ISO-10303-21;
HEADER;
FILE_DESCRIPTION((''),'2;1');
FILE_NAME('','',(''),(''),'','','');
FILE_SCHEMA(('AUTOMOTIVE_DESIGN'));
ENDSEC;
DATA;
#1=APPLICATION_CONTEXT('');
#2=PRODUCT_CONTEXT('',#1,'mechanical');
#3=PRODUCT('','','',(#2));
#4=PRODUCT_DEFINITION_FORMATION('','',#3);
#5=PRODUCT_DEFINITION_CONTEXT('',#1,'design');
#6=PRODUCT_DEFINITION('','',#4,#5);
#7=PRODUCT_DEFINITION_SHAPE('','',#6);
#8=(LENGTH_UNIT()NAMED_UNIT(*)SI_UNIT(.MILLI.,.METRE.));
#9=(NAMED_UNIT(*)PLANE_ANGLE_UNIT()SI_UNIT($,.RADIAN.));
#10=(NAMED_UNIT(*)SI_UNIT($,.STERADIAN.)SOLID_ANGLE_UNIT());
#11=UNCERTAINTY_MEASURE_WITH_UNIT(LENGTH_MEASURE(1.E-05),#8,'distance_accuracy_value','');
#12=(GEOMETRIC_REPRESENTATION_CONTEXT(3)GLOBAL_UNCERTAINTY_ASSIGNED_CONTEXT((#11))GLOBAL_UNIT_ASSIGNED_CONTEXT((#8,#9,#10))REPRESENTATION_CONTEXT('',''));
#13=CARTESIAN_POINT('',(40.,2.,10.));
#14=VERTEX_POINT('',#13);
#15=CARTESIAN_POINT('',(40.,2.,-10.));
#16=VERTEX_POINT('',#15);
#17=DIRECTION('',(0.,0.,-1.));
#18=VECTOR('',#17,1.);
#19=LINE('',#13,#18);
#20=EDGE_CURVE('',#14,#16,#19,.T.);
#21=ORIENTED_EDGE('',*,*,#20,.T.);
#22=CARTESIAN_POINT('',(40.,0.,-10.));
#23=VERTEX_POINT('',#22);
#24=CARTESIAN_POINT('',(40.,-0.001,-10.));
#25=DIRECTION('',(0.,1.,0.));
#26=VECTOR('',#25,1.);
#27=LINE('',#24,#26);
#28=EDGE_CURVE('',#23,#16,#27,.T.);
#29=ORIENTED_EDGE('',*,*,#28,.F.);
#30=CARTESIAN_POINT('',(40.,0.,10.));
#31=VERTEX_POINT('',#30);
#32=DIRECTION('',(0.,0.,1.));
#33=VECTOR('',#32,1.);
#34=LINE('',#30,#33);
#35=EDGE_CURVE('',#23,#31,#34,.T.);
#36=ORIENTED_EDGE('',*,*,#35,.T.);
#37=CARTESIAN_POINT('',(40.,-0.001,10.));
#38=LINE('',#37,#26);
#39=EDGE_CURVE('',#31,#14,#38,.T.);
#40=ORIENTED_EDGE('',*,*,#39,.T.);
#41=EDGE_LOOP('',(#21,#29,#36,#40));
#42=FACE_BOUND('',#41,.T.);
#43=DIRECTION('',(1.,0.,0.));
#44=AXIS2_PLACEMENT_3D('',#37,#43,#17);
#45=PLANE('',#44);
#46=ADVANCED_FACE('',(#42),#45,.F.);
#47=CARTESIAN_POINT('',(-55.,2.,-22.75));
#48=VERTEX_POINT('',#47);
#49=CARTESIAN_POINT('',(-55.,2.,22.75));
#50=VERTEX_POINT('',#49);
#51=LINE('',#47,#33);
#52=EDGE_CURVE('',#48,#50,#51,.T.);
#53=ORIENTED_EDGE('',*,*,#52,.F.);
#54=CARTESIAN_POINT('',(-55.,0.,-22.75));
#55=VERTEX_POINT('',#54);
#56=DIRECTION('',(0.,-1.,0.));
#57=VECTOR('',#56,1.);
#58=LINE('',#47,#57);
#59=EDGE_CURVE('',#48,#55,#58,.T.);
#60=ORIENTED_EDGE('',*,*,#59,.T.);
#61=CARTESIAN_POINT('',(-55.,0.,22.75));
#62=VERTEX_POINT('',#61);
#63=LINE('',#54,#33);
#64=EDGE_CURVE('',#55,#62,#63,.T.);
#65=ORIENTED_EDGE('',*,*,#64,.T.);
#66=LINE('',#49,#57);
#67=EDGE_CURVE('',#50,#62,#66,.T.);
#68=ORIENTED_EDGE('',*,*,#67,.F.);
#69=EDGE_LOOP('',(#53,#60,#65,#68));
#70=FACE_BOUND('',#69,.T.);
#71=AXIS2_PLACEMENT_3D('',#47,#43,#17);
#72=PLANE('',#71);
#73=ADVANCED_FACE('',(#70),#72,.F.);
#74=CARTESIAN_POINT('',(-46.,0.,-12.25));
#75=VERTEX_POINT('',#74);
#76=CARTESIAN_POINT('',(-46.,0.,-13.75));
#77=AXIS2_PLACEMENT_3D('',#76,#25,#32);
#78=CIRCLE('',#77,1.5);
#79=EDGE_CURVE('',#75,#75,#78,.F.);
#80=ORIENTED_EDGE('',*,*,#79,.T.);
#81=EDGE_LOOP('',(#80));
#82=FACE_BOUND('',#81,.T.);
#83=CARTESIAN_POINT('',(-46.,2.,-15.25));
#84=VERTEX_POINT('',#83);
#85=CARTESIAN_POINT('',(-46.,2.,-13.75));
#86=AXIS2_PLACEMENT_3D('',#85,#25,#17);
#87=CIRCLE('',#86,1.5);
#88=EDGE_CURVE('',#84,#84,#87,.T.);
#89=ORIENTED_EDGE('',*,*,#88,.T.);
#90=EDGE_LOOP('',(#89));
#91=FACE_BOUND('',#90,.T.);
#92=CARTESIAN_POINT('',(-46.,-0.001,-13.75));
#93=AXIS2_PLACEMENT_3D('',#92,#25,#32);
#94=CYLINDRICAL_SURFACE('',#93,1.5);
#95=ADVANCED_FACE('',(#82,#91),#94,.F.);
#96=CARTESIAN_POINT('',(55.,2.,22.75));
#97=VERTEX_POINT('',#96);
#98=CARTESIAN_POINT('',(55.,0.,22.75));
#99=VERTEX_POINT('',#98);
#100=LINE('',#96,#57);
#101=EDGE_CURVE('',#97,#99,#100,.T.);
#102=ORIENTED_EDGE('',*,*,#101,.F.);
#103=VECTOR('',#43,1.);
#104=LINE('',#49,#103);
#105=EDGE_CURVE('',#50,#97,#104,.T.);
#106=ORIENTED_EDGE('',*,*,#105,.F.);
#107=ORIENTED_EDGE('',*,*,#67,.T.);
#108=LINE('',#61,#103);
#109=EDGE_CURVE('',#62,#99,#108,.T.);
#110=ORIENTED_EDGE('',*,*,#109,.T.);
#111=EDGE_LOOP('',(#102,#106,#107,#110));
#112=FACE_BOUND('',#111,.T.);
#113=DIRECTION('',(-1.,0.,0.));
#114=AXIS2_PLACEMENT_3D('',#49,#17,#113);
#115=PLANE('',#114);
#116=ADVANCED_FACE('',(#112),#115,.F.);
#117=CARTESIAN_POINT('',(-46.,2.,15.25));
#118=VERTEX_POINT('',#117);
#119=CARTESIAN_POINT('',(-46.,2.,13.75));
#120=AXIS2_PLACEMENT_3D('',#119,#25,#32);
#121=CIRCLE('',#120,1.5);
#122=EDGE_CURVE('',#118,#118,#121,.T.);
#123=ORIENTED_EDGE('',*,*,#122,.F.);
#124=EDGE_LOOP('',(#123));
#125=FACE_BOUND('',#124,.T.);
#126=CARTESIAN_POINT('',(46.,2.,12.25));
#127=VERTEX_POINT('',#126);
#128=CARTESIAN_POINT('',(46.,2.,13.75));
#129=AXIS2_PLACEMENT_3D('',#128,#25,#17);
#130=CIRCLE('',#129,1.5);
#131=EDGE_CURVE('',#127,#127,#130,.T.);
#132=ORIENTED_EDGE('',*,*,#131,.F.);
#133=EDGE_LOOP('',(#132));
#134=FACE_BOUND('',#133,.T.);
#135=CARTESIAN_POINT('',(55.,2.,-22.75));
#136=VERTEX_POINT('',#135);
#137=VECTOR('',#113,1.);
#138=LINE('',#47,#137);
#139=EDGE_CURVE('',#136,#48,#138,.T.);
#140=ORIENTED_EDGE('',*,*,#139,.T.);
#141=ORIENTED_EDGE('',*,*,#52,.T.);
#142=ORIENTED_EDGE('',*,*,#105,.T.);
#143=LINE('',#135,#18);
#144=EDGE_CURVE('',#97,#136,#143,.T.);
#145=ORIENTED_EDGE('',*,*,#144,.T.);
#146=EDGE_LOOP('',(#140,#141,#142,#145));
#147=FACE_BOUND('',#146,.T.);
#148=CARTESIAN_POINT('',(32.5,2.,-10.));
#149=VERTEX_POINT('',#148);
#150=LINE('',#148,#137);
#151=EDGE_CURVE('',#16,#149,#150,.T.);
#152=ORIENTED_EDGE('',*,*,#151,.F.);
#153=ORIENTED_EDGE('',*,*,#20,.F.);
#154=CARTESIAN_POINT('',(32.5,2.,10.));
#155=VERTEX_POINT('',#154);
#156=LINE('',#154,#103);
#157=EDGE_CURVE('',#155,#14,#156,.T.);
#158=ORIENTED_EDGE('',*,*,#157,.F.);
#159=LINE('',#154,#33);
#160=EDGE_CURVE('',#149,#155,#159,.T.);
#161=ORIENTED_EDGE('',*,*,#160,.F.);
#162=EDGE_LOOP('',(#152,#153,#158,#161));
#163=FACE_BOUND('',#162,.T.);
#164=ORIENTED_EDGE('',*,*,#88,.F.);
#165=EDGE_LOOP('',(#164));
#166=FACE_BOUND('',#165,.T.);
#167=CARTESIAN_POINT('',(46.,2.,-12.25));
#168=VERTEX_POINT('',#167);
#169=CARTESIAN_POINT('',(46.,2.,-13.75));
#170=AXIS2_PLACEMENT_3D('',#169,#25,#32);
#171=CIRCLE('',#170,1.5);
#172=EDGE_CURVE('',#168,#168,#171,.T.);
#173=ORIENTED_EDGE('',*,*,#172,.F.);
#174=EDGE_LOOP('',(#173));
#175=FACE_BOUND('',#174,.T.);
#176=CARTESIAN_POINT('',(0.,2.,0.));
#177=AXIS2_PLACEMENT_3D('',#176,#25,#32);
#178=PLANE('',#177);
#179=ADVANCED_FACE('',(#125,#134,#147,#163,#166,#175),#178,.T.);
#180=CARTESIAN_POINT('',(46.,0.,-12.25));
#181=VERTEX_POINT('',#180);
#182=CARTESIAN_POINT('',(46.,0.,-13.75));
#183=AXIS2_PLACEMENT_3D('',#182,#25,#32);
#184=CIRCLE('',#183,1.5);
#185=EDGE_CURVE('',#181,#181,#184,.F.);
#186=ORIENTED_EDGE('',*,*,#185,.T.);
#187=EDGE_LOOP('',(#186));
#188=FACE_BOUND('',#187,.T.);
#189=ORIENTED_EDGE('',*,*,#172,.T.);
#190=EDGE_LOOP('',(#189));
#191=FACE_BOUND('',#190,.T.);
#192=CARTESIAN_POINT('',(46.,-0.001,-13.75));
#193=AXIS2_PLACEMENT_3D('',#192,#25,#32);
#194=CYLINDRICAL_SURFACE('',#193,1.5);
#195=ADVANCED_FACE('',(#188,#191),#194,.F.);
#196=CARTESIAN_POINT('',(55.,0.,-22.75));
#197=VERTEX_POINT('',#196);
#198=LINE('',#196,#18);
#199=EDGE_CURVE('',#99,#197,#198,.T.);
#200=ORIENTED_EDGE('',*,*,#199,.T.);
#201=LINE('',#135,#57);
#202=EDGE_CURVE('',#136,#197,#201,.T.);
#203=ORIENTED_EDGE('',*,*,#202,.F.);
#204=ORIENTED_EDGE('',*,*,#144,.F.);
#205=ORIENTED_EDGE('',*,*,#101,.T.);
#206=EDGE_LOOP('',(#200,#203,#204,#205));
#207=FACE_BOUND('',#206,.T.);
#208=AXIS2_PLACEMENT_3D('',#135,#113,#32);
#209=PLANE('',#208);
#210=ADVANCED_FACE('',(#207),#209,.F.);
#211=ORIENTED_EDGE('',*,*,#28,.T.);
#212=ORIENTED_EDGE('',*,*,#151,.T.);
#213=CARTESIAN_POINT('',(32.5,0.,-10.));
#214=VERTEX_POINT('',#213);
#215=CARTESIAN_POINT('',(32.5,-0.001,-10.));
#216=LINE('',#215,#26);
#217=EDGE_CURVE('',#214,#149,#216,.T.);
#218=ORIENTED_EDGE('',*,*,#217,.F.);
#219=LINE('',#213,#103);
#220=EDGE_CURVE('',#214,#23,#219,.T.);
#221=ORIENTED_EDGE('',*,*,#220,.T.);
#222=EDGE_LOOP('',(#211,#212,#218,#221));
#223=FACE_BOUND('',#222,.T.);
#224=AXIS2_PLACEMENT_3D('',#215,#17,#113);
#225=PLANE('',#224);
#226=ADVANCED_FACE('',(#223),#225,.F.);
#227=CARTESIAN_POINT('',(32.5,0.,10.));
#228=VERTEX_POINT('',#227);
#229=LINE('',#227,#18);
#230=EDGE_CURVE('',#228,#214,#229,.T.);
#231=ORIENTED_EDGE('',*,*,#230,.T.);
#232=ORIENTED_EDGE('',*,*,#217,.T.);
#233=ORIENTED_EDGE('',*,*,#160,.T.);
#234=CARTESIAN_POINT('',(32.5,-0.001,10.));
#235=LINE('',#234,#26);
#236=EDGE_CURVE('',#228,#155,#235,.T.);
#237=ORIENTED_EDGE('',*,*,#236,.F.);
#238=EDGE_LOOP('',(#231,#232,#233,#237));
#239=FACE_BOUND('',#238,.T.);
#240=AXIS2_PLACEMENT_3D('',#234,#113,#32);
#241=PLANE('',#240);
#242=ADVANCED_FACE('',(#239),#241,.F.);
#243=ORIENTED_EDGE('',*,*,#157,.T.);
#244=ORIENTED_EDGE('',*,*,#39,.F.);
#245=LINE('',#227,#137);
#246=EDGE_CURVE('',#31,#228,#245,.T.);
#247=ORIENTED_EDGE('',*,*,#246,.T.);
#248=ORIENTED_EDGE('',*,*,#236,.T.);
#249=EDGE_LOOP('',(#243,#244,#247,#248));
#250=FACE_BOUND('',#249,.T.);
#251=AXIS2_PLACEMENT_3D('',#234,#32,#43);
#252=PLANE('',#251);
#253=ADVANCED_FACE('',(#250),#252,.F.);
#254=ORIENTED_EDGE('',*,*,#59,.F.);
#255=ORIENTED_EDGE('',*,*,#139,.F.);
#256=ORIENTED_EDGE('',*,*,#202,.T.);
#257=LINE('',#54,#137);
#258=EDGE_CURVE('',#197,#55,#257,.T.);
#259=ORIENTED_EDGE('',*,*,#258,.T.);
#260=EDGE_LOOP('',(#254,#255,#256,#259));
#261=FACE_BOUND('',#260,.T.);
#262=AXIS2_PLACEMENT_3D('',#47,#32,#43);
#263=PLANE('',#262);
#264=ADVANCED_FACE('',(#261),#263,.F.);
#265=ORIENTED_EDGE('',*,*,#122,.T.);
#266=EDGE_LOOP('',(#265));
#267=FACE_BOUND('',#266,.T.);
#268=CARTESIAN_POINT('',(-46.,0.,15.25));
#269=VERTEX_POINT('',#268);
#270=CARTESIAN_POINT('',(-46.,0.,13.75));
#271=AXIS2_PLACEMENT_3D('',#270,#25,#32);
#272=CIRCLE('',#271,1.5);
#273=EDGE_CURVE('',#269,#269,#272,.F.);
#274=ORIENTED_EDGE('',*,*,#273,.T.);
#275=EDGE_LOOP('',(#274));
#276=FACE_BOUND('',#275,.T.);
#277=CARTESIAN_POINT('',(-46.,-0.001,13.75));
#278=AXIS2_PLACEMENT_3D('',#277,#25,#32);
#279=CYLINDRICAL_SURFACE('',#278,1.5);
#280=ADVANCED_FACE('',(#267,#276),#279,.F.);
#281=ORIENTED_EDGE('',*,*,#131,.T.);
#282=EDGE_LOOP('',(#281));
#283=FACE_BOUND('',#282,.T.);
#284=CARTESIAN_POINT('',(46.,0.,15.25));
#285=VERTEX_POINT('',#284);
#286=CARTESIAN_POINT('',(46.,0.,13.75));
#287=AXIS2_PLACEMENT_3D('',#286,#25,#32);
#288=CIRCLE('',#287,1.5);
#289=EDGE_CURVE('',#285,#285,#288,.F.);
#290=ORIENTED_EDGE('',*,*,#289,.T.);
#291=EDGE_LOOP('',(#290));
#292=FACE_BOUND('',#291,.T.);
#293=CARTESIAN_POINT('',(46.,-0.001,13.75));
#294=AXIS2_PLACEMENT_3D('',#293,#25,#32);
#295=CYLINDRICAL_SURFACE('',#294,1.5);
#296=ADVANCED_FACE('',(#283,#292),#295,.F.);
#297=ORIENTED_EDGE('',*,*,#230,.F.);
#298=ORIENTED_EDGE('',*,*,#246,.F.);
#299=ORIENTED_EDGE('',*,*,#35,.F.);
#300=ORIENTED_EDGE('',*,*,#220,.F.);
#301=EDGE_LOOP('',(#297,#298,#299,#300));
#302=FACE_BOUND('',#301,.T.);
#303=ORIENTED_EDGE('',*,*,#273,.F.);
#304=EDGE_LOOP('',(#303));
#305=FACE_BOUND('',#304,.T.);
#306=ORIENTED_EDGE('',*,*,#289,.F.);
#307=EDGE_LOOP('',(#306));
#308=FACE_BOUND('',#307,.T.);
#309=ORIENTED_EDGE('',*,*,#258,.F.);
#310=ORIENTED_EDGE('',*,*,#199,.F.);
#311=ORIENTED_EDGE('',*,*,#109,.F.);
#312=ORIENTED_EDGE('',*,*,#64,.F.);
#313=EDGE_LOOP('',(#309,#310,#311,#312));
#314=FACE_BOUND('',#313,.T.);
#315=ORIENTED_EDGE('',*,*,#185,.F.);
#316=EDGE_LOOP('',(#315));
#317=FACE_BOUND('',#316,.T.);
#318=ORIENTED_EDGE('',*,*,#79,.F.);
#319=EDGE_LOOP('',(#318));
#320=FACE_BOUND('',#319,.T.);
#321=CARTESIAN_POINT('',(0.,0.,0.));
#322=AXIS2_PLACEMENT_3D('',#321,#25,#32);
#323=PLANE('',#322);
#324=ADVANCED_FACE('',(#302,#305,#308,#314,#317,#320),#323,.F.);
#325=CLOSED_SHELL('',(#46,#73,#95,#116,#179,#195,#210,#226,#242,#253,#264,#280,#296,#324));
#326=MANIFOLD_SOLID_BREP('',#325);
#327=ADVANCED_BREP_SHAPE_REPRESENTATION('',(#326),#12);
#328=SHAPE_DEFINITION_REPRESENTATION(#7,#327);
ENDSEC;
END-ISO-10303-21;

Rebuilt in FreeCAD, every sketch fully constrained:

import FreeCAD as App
import Part
import Sketcher
Q = App.Units.Quantity

doc = App.newDocument("Part")
body = doc.addObject("PartDesign::Body", "Body")

sketch1 = body.newObject("Sketcher::SketchObject", "Sketch")
sketch1.AttachmentSupport = (doc.getObject("XZ_Plane"), [""])
sketch1.MapMode = "FlatFace"
sketch1.addGeometry([
    Part.LineSegment(App.Vector(-55, -23, 0), App.Vector(-55, 23, 0)),
    Part.LineSegment(App.Vector(-55, 23, 0), App.Vector(55, 23, 0)),
    Part.LineSegment(App.Vector(55, 23, 0), App.Vector(55, -23, 0)),
    Part.LineSegment(App.Vector(55, -23, 0), App.Vector(-55, -23, 0)),
], False)
sketch1.addConstraint([
    Sketcher.Constraint("Coincident", 0, 2, 1, 1),
    Sketcher.Constraint("Coincident", 1, 2, 2, 1),
    Sketcher.Constraint("Coincident", 2, 2, 3, 1),
    Sketcher.Constraint("Coincident", 3, 2, 0, 1),
    Sketcher.Constraint("Vertical", 0),
    Sketcher.Constraint("Horizontal", 1),
    Sketcher.Constraint("Vertical", 2),
    Sketcher.Constraint("Horizontal", 3),
    Sketcher.Constraint("Symmetric", 0, 2, 2, 2, -1, 1),
    Sketcher.Constraint("DistanceX", 1, 1, 1, 2, Q("110 mm")),
    Sketcher.Constraint("DistanceY", 0, 1, 0, 2, Q("45.5 mm")),
])
pad1 = body.newObject("PartDesign::Pad", "Pad")
pad1.Profile = sketch1
pad1.Length = 2
pad1.Reversed = True

sketch2 = body.newObject("Sketcher::SketchObject", "Sketch001")
sketch2.AttachmentSupport = (doc.getObject("XZ_Plane"), [""])
sketch2.MapMode = "FlatFace"
sketch2.AttachmentOffset = App.Placement(App.Vector(0, 0, -2), App.Rotation())
sketch2.addGeometry(Part.Circle(App.Vector(-46, 13.8, 0), App.Vector(0, 0, 1), 1.5), False)
sketch2.addConstraint([
    Sketcher.Constraint("Diameter", 0, Q("3 mm")),
    Sketcher.Constraint("DistanceX", 0, 3, -1, 1, Q("46 mm")),
    Sketcher.Constraint("DistanceY", -1, 1, 0, 3, Q("13.75 mm")),
])
pocket1 = body.newObject("PartDesign::Pocket", "Pocket")
pocket1.Profile = sketch2
pocket1.Type = "UpToFirst"
pocket1.Reversed = True

sketch3 = body.newObject("Sketcher::SketchObject", "Sketch002")
sketch3.AttachmentSupport = (doc.getObject("XZ_Plane"), [""])
sketch3.MapMode = "FlatFace"
sketch3.AttachmentOffset = App.Placement(App.Vector(0, 0, -2), App.Rotation())
sketch3.addGeometry(Part.Circle(App.Vector(-46, -13.8, 0), App.Vector(0, 0, 1), 1.5), False)
sketch3.addConstraint([
    Sketcher.Constraint("Diameter", 0, Q("3 mm")),
    Sketcher.Constraint("DistanceX", 0, 3, -1, 1, Q("46 mm")),
    Sketcher.Constraint("DistanceY", 0, 3, -1, 1, Q("13.75 mm")),
])
pocket2 = body.newObject("PartDesign::Pocket", "Pocket001")
pocket2.Profile = sketch3
pocket2.Type = "UpToFirst"
pocket2.Reversed = True

sketch4 = body.newObject("Sketcher::SketchObject", "Sketch003")
sketch4.AttachmentSupport = (doc.getObject("XZ_Plane"), [""])
sketch4.MapMode = "FlatFace"
sketch4.AttachmentOffset = App.Placement(App.Vector(0, 0, -2), App.Rotation())
sketch4.addGeometry(Part.Circle(App.Vector(46, -13.8, 0), App.Vector(0, 0, 1), 1.5), False)
sketch4.addConstraint([
    Sketcher.Constraint("Diameter", 0, Q("3 mm")),
    Sketcher.Constraint("DistanceX", -1, 1, 0, 3, Q("46 mm")),
    Sketcher.Constraint("DistanceY", 0, 3, -1, 1, Q("13.75 mm")),
])
pocket3 = body.newObject("PartDesign::Pocket", "Pocket002")
pocket3.Profile = sketch4
pocket3.Type = "UpToFirst"
pocket3.Reversed = True

sketch5 = body.newObject("Sketcher::SketchObject", "Sketch004")
sketch5.AttachmentSupport = (doc.getObject("XZ_Plane"), [""])
sketch5.MapMode = "FlatFace"
sketch5.AttachmentOffset = App.Placement(App.Vector(0, 0, -2), App.Rotation())
sketch5.addGeometry(Part.Circle(App.Vector(46, 13.8, 0), App.Vector(0, 0, 1), 1.5), False)
sketch5.addConstraint([
    Sketcher.Constraint("Diameter", 0, Q("3 mm")),
    Sketcher.Constraint("DistanceX", -1, 1, 0, 3, Q("46 mm")),
    Sketcher.Constraint("DistanceY", -1, 1, 0, 3, Q("13.75 mm")),
])
pocket4 = body.newObject("PartDesign::Pocket", "Pocket003")
pocket4.Profile = sketch5
pocket4.Type = "UpToFirst"
pocket4.Reversed = True

sketch6 = body.newObject("Sketcher::SketchObject", "Sketch005")
sketch6.AttachmentSupport = (doc.getObject("XZ_Plane"), [""])
sketch6.MapMode = "FlatFace"
sketch6.AttachmentOffset = App.Placement(App.Vector(0, 0, -2), App.Rotation())
sketch6.addGeometry([
    Part.LineSegment(App.Vector(32, -10, 0), App.Vector(32, 10, 0)),
    Part.LineSegment(App.Vector(32, 10, 0), App.Vector(40, 10, 0)),
    Part.LineSegment(App.Vector(40, 10, 0), App.Vector(40, -10, 0)),
    Part.LineSegment(App.Vector(40, -10, 0), App.Vector(32, -10, 0)),
], False)
sketch6.addConstraint([
    Sketcher.Constraint("Coincident", 0, 2, 1, 1),
    Sketcher.Constraint("Coincident", 1, 2, 2, 1),
    Sketcher.Constraint("Coincident", 2, 2, 3, 1),
    Sketcher.Constraint("Coincident", 3, 2, 0, 1),
    Sketcher.Constraint("Vertical", 0),
    Sketcher.Constraint("Horizontal", 1),
    Sketcher.Constraint("Vertical", 2),
    Sketcher.Constraint("Horizontal", 3),
    Sketcher.Constraint("DistanceY", 0, 1, 0, 2, Q("20 mm")),
    Sketcher.Constraint("DistanceX", 1, 1, 1, 2, Q("7.5 mm")),
    Sketcher.Constraint("DistanceY", -1, 1, 0, 2, Q("10 mm")),
    Sketcher.Constraint("DistanceX", -1, 1, 1, 2, Q("40 mm")),
])
pocket5 = body.newObject("PartDesign::Pocket", "Pocket004")
pocket5.Profile = sketch6
pocket5.Type = "UpToFirst"
pocket5.Reversed = True

doc.recompute()
